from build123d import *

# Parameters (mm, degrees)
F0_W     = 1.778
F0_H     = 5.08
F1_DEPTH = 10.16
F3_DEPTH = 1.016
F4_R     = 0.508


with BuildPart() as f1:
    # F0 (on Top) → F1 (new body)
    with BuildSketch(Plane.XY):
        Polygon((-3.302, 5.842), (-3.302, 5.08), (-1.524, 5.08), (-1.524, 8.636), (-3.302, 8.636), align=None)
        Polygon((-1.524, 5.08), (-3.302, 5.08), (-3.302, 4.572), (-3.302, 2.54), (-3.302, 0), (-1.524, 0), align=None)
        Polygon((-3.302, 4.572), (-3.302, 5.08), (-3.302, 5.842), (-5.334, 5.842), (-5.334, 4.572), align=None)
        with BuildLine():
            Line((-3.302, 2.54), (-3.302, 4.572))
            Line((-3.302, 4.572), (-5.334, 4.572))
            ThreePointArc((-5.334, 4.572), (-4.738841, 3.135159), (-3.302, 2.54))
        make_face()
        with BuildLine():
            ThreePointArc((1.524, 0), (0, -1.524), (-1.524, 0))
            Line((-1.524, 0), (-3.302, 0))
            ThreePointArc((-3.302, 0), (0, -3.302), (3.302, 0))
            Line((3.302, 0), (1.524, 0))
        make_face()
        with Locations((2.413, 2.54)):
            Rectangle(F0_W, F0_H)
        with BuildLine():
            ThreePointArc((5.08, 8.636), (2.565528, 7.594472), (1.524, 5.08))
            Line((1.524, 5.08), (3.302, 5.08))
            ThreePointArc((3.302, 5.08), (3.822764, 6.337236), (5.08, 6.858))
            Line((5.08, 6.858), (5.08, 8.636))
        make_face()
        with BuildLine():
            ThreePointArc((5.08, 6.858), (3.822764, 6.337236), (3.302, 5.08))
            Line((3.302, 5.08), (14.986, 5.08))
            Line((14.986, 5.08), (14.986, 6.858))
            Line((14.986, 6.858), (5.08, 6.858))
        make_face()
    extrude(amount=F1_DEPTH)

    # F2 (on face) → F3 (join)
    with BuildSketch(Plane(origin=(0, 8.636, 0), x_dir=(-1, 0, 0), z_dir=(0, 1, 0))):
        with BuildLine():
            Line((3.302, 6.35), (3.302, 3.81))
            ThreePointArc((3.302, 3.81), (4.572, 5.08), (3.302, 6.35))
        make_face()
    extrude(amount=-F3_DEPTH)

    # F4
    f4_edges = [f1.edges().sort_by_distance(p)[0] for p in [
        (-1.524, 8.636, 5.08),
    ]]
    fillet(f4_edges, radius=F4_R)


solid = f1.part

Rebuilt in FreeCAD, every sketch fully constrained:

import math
import FreeCAD as App
import Part
import Sketcher

V = App.Vector
Q = App.Units.Quantity


def edges_at(feature, points):
    """Names of the edges that pass closest to the given points."""
    edges = feature.Shape.Edges
    near = lambda p: min(range(len(edges)), key=lambda i: edges[i].distToShape(Part.Vertex(*p))[0])
    return sorted({f"Edge{near(p) + 1}" for p in points})

doc = App.newDocument("Part")
params = doc.addObject("Spreadsheet::Sheet", "Params")
for row, (alias, value) in enumerate([
    ("sketch1_radius", "0.08 in"),
    ("sketch1_radius2", "0.13 in"),
    ("sketch1_radius3", "0.14 in"),
    ("sketch1_height", "0.1 in"),
    ("sketch1_height2", "0.2 in"),
    ("pad1_length", "0.4 in"),
    ("sketch2_radius", "0.05 in"),
    ("pad2_length", "0.04 in"),
    ("fillet_radius", "0.02 in"),
], start=1):
    params.set(f"A{row}", alias)
    params.set(f"B{row}", "=" + value)
    params.setAlias(f"B{row}", alias)

body = doc.addObject("PartDesign::Body", "Body")

# Sketch on XY plane
sketch1 = doc.addObject("Sketcher::SketchObject", "Sketch")
body.addObject(sketch1)
sketch1.AttachmentSupport = (doc.XY_Plane, [""])
sketch1.MapMode = "FlatFace"
sketch1.addGeometry([
    Part.LineSegment(V(-1.5, 8.6, 0), V(-3.3, 8.6, 0)),  # 0
    Part.LineSegment(V(-3.3, 8.6, 0), V(-3.3, 5.8, 0)),  # 1
    Part.LineSegment(V(-3.3, 5.8, 0), V(-5.3, 5.8, 0)),  # 2
    Part.LineSegment(V(-5.3, 5.8, 0), V(-5.3, 4.6, 0)),  # 3
    Part.ArcOfCircle(Part.Circle(V(-3.3, 4.6, 0), V(0, 0, 1), 2), math.radians(180), math.radians(270)),  # 4
    Part.LineSegment(V(-3.3, 2.5, 0), V(-3.3, 0, 0)),  # 5
    Part.ArcOfCircle(Part.Circle(V(0, 0, 0), V(0, 0, 1), 3.3), math.radians(180), math.radians(360)),  # 6
    Part.LineSegment(V(3.3, 0, 0), V(3.3, 5.1, 0)),  # 7
    Part.LineSegment(V(3.3, 5.1, 0), V(15, 5.1, 0)),  # 8
    Part.LineSegment(V(15, 5.1, 0), V(15, 6.9, 0)),  # 9
    Part.LineSegment(V(15, 6.9, 0), V(5.1, 6.9, 0)),  # 10
    Part.LineSegment(V(5.1, 6.9, 0), V(5.1, 8.6, 0)),  # 11
    Part.ArcOfCircle(Part.Circle(V(5.1, 5.1, 0), V(0, 0, 1), 3.6), math.radians(90), math.radians(180)),  # 12
    Part.LineSegment(V(1.5, 5.1, 0), V(1.5, 0, 0)),  # 13
    Part.ArcOfCircle(Part.Circle(V(0, 0, 0), V(0, 0, 1), 1.5), math.radians(180), math.radians(360)),  # 14
    Part.LineSegment(V(-1.5, 0, 0), V(-1.5, 8.6, 0)),  # 15
], False)
sketch1.addConstraint([
    Sketcher.Constraint("Coincident", 0, 2, 1, 1),
    Sketcher.Constraint("Coincident", 1, 2, 2, 1),
    Sketcher.Constraint("Coincident", 2, 2, 3, 1),
    Sketcher.Constraint("Tangent", 3, 2, 4, 1),
    Sketcher.Constraint("Coincident", 4, 2, 5, 1),
    Sketcher.Constraint("Tangent", 5, 2, 6, 1),
    Sketcher.Constraint("Tangent", 6, 2, 7, 1),
    Sketcher.Constraint("Coincident", 7, 2, 8, 1),
    Sketcher.Constraint("Coincident", 8, 2, 9, 1),
    Sketcher.Constraint("Coincident", 9, 2, 10, 1),
    Sketcher.Constraint("Coincident", 10, 2, 11, 1),
    Sketcher.Constraint("Coincident", 11, 2, 12, 1),
    Sketcher.Constraint("Tangent", 12, 2, 13, 1),
    Sketcher.Constraint("Tangent", 13, 2, 14, 2),
    Sketcher.Constraint("Tangent", 14, 1, 15, 1),
    Sketcher.Constraint("Coincident", 15, 2, 0, 1),
    Sketcher.Constraint("Horizontal", 0),
    Sketcher.Constraint("Vertical", 1),
    Sketcher.Constraint("Horizontal", 2),
    Sketcher.Constraint("Vertical", 3),
    Sketcher.Constraint("Vertical", 5),
    Sketcher.Constraint("Vertical", 7),
    Sketcher.Constraint("Horizontal", 8),
    Sketcher.Constraint("Vertical", 9),
    Sketcher.Constraint("Horizontal", 10),
    Sketcher.Constraint("Vertical", 11),
    Sketcher.Constraint("Vertical", 13),
    Sketcher.Constraint("Vertical", 15),
    Sketcher.Constraint("Coincident", 6, 3, -1, 1),
    Sketcher.Constraint("Coincident", 14, 3, -1, 1),
    Sketcher.Constraint("Horizontal", 12, 3, 7, 2),
    Sketcher.Constraint("Horizontal", 0, 2, 11, 2),
    Sketcher.Constraint("Vertical", 4, 3, 0, 2),
    Sketcher.Constraint("Vertical", 1, 2, 4, 2),
    Sketcher.Constraint("Vertical", 12, 3, 10, 2),
    Sketcher.Constraint("Equal", 0, 9),
    Sketcher.Constraint("Equal", 9, 11),
    Sketcher.Constraint("Radius", 4, Q("0.08 in")),
    Sketcher.Constraint("Radius", 6, Q("0.13 in")),
    Sketcher.Constraint("Radius", 12, Q("0.14 in")),
    Sketcher.Constraint("DistanceY", 5, 2, 5, 1, Q("0.1 in")),
    Sketcher.Constraint("DistanceY", 7, 1, 7, 2, Q("0.2 in")),
    Sketcher.Constraint("DistanceX", 8, 1, 8, 2, Q("0.46 in")),
    Sketcher.Constraint("DistanceY", 1, 2, 1, 1, Q("0.11 in")),
])
sketch1.setExpression("Constraints[37]", "Params.sketch1_radius")
sketch1.setExpression("Constraints[38]", "Params.sketch1_radius2")
sketch1.setExpression("Constraints[39]", "Params.sketch1_radius3")
sketch1.setExpression("Constraints[40]", "Params.sketch1_height")
sketch1.setExpression("Constraints[41]", "Params.sketch1_height2")
pad1 = doc.addObject("PartDesign::Pad", "Pad")
body.addObject(pad1)
pad1.Profile = sketch1
pad1.setExpression("Length", "Params.pad1_length")

# Sketch on XZ plane
sketch2 = doc.addObject("Sketcher::SketchObject", "Sketch001")
body.addObject(sketch2)
sketch2.AttachmentSupport = (doc.XZ_Plane, [""])
sketch2.MapMode = "FlatFace"
sketch2.AttachmentOffset = App.Placement(V(0, 0, -0.34 * 25.4), App.Rotation())
sketch2.addGeometry([
    Part.LineSegment(V(-3.3, 6.3, 0), V(-3.3, 3.8, 0)),
    Part.ArcOfCircle(Part.Circle(V(-3.3, 5.1, 0), V(0, 0, 1), 1.3), math.radians(90), math.radians(270)),
], False)
sketch2.addConstraint([
    Sketcher.Constraint("Coincident", 0, 1, 1, 1),
    Sketcher.Constraint("Coincident", 1, 2, 0, 2),
    Sketcher.Constraint("Vertical", 0),
    Sketcher.Constraint("Vertical", 1, 3, 0, 1),
    Sketcher.Constraint("Radius", 1, Q("0.05 in")),
    Sketcher.Constraint("DistanceY", -1, 1, 1, 3, Q("0.2 in")),
    Sketcher.Constraint("DistanceX", 1, 3, -1, 1, Q("0.13 in")),
])
sketch2.setExpression("Constraints[4]", "Params.sketch2_radius")
pad2 = doc.addObject("PartDesign::Pad", "Pad001")
body.addObject(pad2)
pad2.Profile = sketch2
pad2.setExpression("Length", "Params.pad2_length")
doc.recompute()

fillet = doc.addObject("PartDesign::Fillet", "Fillet")
body.addObject(fillet)
fillet.Base = (pad2, edges_at(pad2, [(-1.524, 8.636, 5.08)]))
fillet.setExpression("Radius", "Params.fillet_radius")

doc.recompute()
